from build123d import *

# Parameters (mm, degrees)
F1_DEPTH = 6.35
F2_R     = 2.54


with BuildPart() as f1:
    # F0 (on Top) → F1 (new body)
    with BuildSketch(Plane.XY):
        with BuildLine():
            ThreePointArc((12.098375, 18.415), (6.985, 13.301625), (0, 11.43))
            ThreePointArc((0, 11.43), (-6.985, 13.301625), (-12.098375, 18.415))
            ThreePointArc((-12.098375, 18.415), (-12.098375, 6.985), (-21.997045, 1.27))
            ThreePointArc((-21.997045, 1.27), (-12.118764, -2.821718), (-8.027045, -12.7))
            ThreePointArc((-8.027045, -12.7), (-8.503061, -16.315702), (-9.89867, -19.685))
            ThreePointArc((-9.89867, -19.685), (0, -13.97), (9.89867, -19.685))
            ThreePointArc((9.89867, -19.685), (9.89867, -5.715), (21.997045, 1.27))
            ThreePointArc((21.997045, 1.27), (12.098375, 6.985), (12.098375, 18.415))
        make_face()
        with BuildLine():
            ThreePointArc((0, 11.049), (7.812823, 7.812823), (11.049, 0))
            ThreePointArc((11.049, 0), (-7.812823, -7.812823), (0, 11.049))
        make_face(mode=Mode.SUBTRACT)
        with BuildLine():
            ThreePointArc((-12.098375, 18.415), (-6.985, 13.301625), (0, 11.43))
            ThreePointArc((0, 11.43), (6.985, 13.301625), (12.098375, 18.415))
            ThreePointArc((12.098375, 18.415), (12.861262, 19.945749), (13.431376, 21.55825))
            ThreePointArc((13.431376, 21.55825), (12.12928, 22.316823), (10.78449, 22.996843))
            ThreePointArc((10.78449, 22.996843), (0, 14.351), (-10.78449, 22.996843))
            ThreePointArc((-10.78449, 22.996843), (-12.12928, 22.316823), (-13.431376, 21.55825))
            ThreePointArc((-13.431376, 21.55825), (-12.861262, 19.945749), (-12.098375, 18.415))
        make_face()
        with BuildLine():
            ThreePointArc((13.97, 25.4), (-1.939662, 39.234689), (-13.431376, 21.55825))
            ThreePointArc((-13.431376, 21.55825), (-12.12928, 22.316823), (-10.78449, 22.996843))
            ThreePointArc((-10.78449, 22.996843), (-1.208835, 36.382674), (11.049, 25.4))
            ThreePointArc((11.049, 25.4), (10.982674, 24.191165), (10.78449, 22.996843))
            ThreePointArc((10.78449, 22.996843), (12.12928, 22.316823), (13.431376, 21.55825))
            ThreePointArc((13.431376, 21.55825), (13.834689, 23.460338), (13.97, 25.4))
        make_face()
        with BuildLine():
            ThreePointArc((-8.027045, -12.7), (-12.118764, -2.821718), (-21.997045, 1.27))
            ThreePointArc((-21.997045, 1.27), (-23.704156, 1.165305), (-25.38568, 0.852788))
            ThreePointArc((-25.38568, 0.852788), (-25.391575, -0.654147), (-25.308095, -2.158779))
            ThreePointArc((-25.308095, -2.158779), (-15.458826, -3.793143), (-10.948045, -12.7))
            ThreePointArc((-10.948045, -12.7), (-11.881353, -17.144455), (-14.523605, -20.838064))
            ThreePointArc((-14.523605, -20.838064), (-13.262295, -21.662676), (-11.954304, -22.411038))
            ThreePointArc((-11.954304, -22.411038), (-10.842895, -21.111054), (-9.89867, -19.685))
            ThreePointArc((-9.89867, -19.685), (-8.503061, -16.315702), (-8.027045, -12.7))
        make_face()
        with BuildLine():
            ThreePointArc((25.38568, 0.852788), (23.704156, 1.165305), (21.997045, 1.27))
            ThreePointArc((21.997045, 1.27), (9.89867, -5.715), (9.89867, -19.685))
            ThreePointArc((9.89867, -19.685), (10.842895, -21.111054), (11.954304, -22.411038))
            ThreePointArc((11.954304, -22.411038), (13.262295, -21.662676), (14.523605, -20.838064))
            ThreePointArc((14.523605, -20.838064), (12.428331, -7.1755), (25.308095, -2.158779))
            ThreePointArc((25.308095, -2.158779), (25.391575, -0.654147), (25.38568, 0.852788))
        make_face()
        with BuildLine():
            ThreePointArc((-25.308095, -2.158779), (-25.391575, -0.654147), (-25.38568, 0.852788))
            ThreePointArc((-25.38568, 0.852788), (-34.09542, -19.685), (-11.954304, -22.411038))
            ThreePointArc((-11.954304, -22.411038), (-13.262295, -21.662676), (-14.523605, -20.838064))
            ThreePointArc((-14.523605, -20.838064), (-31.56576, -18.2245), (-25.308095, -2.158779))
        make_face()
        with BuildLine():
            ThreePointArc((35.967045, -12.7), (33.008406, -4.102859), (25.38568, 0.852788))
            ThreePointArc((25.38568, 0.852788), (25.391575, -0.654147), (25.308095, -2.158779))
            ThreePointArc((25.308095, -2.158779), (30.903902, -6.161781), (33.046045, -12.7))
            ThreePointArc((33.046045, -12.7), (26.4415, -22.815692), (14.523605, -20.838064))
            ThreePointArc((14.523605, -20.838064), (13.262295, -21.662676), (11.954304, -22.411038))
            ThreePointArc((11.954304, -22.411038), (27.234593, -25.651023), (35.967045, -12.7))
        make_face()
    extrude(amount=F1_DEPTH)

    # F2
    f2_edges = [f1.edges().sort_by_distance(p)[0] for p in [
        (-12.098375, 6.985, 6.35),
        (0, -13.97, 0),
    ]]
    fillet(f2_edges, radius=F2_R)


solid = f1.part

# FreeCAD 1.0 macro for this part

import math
import FreeCAD as App
import Part
import Sketcher
from FreeCAD import Vector
Q = App.Units.Quantity


def edges_at(feature, points):
    """Names of the edges that pass closest to the given points."""
    edges = feature.Shape.Edges
    near = lambda p: min(range(len(edges)), key=lambda i: edges[i].distToShape(Part.Vertex(*p))[0])
    return sorted({f"Edge{near(p) + 1}" for p in points})

doc = App.newDocument("Part")
body = doc.addObject("PartDesign::Body", "Body")

sketch1 = body.newObject("Sketcher::SketchObject", "Sketch")
sketch1.AttachmentSupport = (doc.getObject("XY_Plane"), [""])
sketch1.MapMode = "FlatFace"
sketch1.addGeometry(Part.ArcOfCircle(Part.Circle(Vector(21.997045, 12.7, 0), Vector(0, 0, 1), 11.43), math.radians(150), math.radians(269.999998)), False)
sketch1.addGeometry(Part.ArcOfCircle(Part.Circle(Vector(0.000047, 25.39998, 0), Vector(0, 0, 1), 13.969949), math.radians(-30.000026), math.radians(-15.961989)), False)
sketch1.addGeometry(Part.ArcOfCircle(Part.Circle(Vector(0.000023, 25.399996, 0), Vector(0, 0, 1), 13.969977), math.radians(-15.962025), math.radians(0.000015)), False)
sketch1.addGeometry(Part.ArcOfCircle(Part.Circle(Vector(0, 25.4, 0), Vector(0, 0, 1), 13.97), math.radians(-0.000001), math.radians(195.962015)), False)
sketch1.addGeometry(Part.ArcOfCircle(Part.Circle(Vector(-0.000047, 25.39998, 0), Vector(0, 0, 1), 13.969949), math.radians(-164.038011), math.radians(-149.999974)), False)
sketch1.addGeometry(Part.ArcOfCircle(Part.Circle(Vector(-21.997045, 12.7, 0), Vector(0, 0, 1), 11.43), math.radians(-89.999998), math.radians(30)), False)
sketch1.addGeometry(Part.ArcOfCircle(Part.Circle(Vector(-21.99705, -12.699972, 0), Vector(0, 0, 1), 13.969972), math.radians(89.99998), math.radians(104.037994)), False)
sketch1.addGeometry(Part.ArcOfCircle(Part.Circle(Vector(-21.997045, -12.7, 0), Vector(0, 0, 1), 13.97), math.radians(104.037987), math.radians(315.962013)), False)
sketch1.addGeometry(Part.ArcOfCircle(Part.Circle(Vector(-21.997093, -12.699964, 0), Vector(0, 0, 1), 13.97006), math.radians(-44.037955), math.radians(-30.000028)), False)
sketch1.addGeometry(Part.ArcOfCircle(Part.Circle(Vector(0, -25.399999, 0), Vector(0, 0, 1), 11.429999), math.radians(29.999998), math.radians(150.000002)), False)
sketch1.addGeometry(Part.ArcOfCircle(Part.Circle(Vector(21.997093, -12.699964, 0), Vector(0, 0, 1), 13.97006), math.radians(-149.999972), math.radians(-135.962045)), False)
sketch1.addGeometry(Part.ArcOfCircle(Part.Circle(Vector(21.997045, -12.7, 0), Vector(0, 0, 1), 13.97), math.radians(-135.962014), math.radians(0.000001)), False)
sketch1.addGeometry(Part.ArcOfCircle(Part.Circle(Vector(21.997045, -12.7, 0), Vector(0, 0, 1), 13.97), math.radians(-0.000001), math.radians(75.962013)), False)
sketch1.addGeometry(Part.ArcOfCircle(Part.Circle(Vector(21.99705, -12.699972, 0), Vector(0, 0, 1), 13.969972), math.radians(75.962006), math.radians(90.00002)), False)
sketch1.addGeometry(Part.ArcOfCircle(Part.Circle(Vector(21.997045, -12.7, 0), Vector(0, 0, 1), 11.049), math.radians(72.562238), math.radians(227.437763)), False)
sketch1.addGeometry(Part.ArcOfCircle(Part.Circle(Vector(21.997048, -12.699999, 0), Vector(0, 0, 1), 11.048997), math.radians(-0.000008), math.radians(72.562247)), False)
sketch1.addGeometry(Part.ArcOfCircle(Part.Circle(Vector(21.997045, -12.700001, 0), Vector(0, 0, 1), 11.049), math.radians(-132.562239), math.radians(0.000003)), False)
sketch1.addGeometry(Part.ArcOfCircle(Part.Circle(Vector(-21.997044, -12.699999, 0), Vector(0, 0, 1), 11.048999), math.radians(-0.000005), math.radians(107.43777)), False)
sketch1.addGeometry(Part.ArcOfCircle(Part.Circle(Vector(-21.99704, -12.700001, 0), Vector(0, 0, 1), 11.048995), math.radians(-47.437777), math.radians(0.000007)), False)
sketch1.addGeometry(Part.ArcOfCircle(Part.Circle(Vector(-21.997046, -12.7, 0), Vector(0, 0, 1), 11.049), math.radians(107.437761), math.radians(312.562238)), False)
sketch1.addGeometry(Part.ArcOfCircle(Part.Circle(Vector(0, 25.399999, 0), Vector(0, 0, 1), 11.048999), math.radians(-167.437767), math.radians(-12.562233)), False)
sketch1.addGeometry(Part.ArcOfCircle(Part.Circle(Vector(0, 25.400001, 0), Vector(0, 0, 1), 11.049), math.radians(-0.000003), math.radians(192.562239)), False)
sketch1.addGeometry(Part.ArcOfCircle(Part.Circle(Vector(0.000118, 25.39999, 0), Vector(0, 0, 1), 11.048882), math.radians(-12.562317), math.radians(0.000053)), False)
sketch1.addGeometry(Part.ArcOfCircle(Part.Circle(Vector(0, 0, 0), Vector(0, 0, 1), 11.049), math.radians(89.999999), math.radians(360.000001)), False)
sketch1.addGeometry(Part.ArcOfCircle(Part.Circle(Vector(0.000001, 0.000001, 0), Vector(0, 0, 1), 11.048999), math.radians(-0.000003), math.radians(90.000003)), False)
sketch1.addConstraint(Sketcher.Constraint("Coincident", 0, 1, 1, 1))
sketch1.addConstraint(Sketcher.Constraint("Coincident", 1, 2, 2, 1))
sketch1.addConstraint(Sketcher.Constraint("Coincident", 2, 2, 3, 1))
sketch1.addConstraint(Sketcher.Constraint("Coincident", 3, 2, 4, 1))
sketch1.addConstraint(Sketcher.Constraint("Coincident", 4, 2, 5, 2))
sketch1.addConstraint(Sketcher.Constraint("Coincident", 5, 1, 6, 1))
sketch1.addConstraint(Sketcher.Constraint("Coincident", 6, 2, 7, 1))
sketch1.addConstraint(Sketcher.Constraint("Coincident", 7, 2, 8, 1))
sketch1.addConstraint(Sketcher.Constraint("Coincident", 8, 2, 9, 2))
sketch1.addConstraint(Sketcher.Constraint("Coincident", 9, 1, 10, 1))
sketch1.addConstraint(Sketcher.Constraint("Coincident", 10, 2, 11, 1))
sketch1.addConstraint(Sketcher.Constraint("Coincident", 11, 2, 12, 1))
sketch1.addConstraint(Sketcher.Constraint("Coincident", 12, 2, 13, 1))
sketch1.addConstraint(Sketcher.Constraint("Coincident", 13, 2, 0, 2))
sketch1.addConstraint(Sketcher.Constraint("Coincident", 14, 1, 15, 2))
sketch1.addConstraint(Sketcher.Constraint("Coincident", 15, 1, 16, 2))
sketch1.addConstraint(Sketcher.Constraint("Coincident", 16, 1, 14, 2))
sketch1.addConstraint(Sketcher.Constraint("Coincident", 17, 1, 18, 2))
sketch1.addConstraint(Sketcher.Constraint("Coincident", 18, 1, 19, 2))
sketch1.addConstraint(Sketcher.Constraint("Coincident", 19, 1, 17, 2))
sketch1.addConstraint(Sketcher.Constraint("Coincident", 20, 1, 21, 2))
sketch1.addConstraint(Sketcher.Constraint("Coincident", 21, 1, 22, 2))
sketch1.addConstraint(Sketcher.Constraint("Coincident", 22, 1, 20, 2))
sketch1.addConstraint(Sketcher.Constraint("Coincident", 23, 1, 24, 2))
sketch1.addConstraint(Sketcher.Constraint("Coincident", 24, 1, 23, 2))
sketch1.addConstraint(Sketcher.Constraint("Coincident", 23, 3, -1, 1))
sketch1.addConstraint(Sketcher.Constraint("Coincident", 12, 3, 11, 3))
sketch1.addConstraint(Sketcher.Constraint("Coincident", 14, 3, 11, 3))
sketch1.addConstraint(Sketcher.Constraint("Coincident", 15, 3, 11, 3))
sketch1.addConstraint(Sketcher.Constraint("Coincident", 17, 3, 7, 3))
sketch1.addConstraint(Sketcher.Constraint("Coincident", 18, 3, 7, 3))
sketch1.addConstraint(Sketcher.Constraint("Coincident", 20, 3, 3, 3))
sketch1.addConstraint(Sketcher.Constraint("Coincident", 21, 3, 3, 3))
sketch1.addConstraint(Sketcher.Constraint("PointOnObject", 3, 3, -2))
sketch1.addConstraint(Sketcher.Constraint("PointOnObject", 9, 3, -2))
sketch1.addConstraint(Sketcher.Constraint("PointOnObject", 23, 1, -2))
sketch1.addConstraint(Sketcher.Constraint("PointOnObject", 24, 1, -1))
sketch1.addConstraint(Sketcher.Constraint("Radius", 0, Q("0.45 in")))
sketch1.addConstraint(Sketcher.Constraint("Radius", 3, Q("0.55 in")))
sketch1.addConstraint(Sketcher.Constraint("Radius", 5, Q("0.45 in")))
sketch1.addConstraint(Sketcher.Constraint("Radius", 7, Q("0.55 in")))
sketch1.addConstraint(Sketcher.Constraint("Radius", 9, Q("0.45 in")))
sketch1.addConstraint(Sketcher.Constraint("Radius", 11, Q("0.55 in")))
sketch1.addConstraint(Sketcher.Constraint("DistanceY", -1, 1, 2, 3, Q("0.9999999 in")))
sketch1.addConstraint(Sketcher.Constraint("DistanceY", -1, 1, 3, 3, Q("1 in")))
sketch1.addConstraint(Sketcher.Constraint("DistanceY", 9, 3, -1, 1, Q("1 in")))
sketch1.addConstraint(Sketcher.Constraint("DistanceY", -1, 1, 2, 2, Q("1 in")))
sketch1.addConstraint(Sketcher.Constraint("DistanceY", -1, 1, 21, 1, Q("1 in")))
sketch1.addConstraint(Sketcher.Constraint("Radius", 14, Q("0.435 in")))
sketch1.addConstraint(Sketcher.Constraint("Radius", 16, Q("0.435 in")))
sketch1.addConstraint(Sketcher.Constraint("Radius", 17, Q("0.435 in")))
sketch1.addConstraint(Sketcher.Constraint("Radius", 19, Q("0.435 in")))
sketch1.addConstraint(Sketcher.Constraint("Radius", 20, Q("0.435 in")))
sketch1.addConstraint(Sketcher.Constraint("Radius", 23, Q("0.435 in")))
sketch1.addConstraint(Sketcher.Constraint("Radius", 24, Q("0.435 in")))
sketch1.addConstraint(Sketcher.Constraint("DistanceY", 7, 3, 5, 3, Q("1 in")))
sketch1.addConstraint(Sketcher.Constraint("DistanceY", 11, 3, 0, 3, Q("1 in")))
sketch1.addConstraint(Sketcher.Constraint("DistanceY", -1, 1, 0, 3, Q("0.5 in")))
sketch1.addConstraint(Sketcher.Constraint("DistanceY", -1, 1, 5, 3, Q("0.5 in")))
sketch1.addConstraint(Sketcher.Constraint("DistanceY", 11, 2, -1, 1, Q("0.5 in")))
sketch1.addConstraint(Sketcher.Constraint("DistanceY", 15, 1, -1, 1, Q("0.5 in")))
sketch1.addConstraint(Sketcher.Constraint("DistanceY", 17, 1, -1, 1, Q("0.5 in")))
sketch1.addConstraint(Sketcher.Constraint("DistanceX", 13, 3, 11, 2, Q("0.5499998 in")))
sketch1.addConstraint(Sketcher.Constraint("DistanceY", 23, 1, 0, 1, Q("0.29 in")))
sketch1.addConstraint(Sketcher.Constraint("DistanceY", 23, 1, 4, 2, Q("0.29 in")))
sketch1.addConstraint(Sketcher.Constraint("DistanceY", 8, 2, -1, 1, Q("0.775 in")))
sketch1.addConstraint(Sketcher.Constraint("DistanceY", 9, 1, -1, 1, Q("0.775 in")))
sketch1.addConstraint(Sketcher.Constraint("Radius", 1, 13.969949))
sketch1.addConstraint(Sketcher.Constraint("Radius", 4, 13.969949))
sketch1.addConstraint(Sketcher.Constraint("Radius", 8, 13.97006))
sketch1.addConstraint(Sketcher.Constraint("Radius", 10, 13.97006))
sketch1.addConstraint(Sketcher.Constraint("Radius", 2, 13.969977))
sketch1.addConstraint(Sketcher.Constraint("Radius", 6, 13.969972))
sketch1.addConstraint(Sketcher.Constraint("Radius", 22, 11.048882))
sketch1.addConstraint(Sketcher.Constraint("DistanceX", 1, 3, 0, 3, 21.996998))
sketch1.addConstraint(Sketcher.Constraint("DistanceX", 5, 3, 4, 3, 21.996998))
sketch1.addConstraint(Sketcher.Constraint("DistanceX", 0, 1, 1, 2, 1.333001))
sketch1.addConstraint(Sketcher.Constraint("DistanceX", 3, 2, 4, 2, 1.333001))
sketch1.addConstraint(Sketcher.Constraint("DistanceX", 10, 3, 14, 1, 3.311002))
sketch1.addConstraint(Sketcher.Constraint("DistanceX", 10, 2, 16, 1, 2.569301))
sketch1.addConstraint(Sketcher.Constraint("DistanceX", 18, 1, 7, 2, 2.569301))
sketch1.addConstraint(Sketcher.Constraint("DistanceX", 19, 1, 8, 3, 3.311002))
sketch1.addConstraint(Sketcher.Constraint("DistanceX", 6, 3, -1, 1, 21.99705))
sketch1.addConstraint(Sketcher.Constraint("DistanceX", -1, 1, 13, 3, 21.99705))
sketch1.addConstraint(Sketcher.Constraint("DistanceX", 6, 2, -1, 1, 25.38568))
sketch1.addConstraint(Sketcher.Constraint("DistanceY", 7, 2, -1, 1, 22.411038))
sketch1.addConstraint(Sketcher.Constraint("DistanceX", -1, 1, 12, 2, 25.38568))
sketch1.addConstraint(Sketcher.Constraint("DistanceX", 20, 1, -1, 1, 10.78449))
sketch1.addConstraint(Sketcher.Constraint("DistanceX", -1, 1, 22, 1, 10.78449))
sketch1.addConstraint(Sketcher.Constraint("DistanceY", 9, 3, 10, 2, 2.988961))
sketch1.addConstraint(Sketcher.Constraint("DistanceX", 13, 2, 14, 1, 3.31105))
sketch1.addConstraint(Sketcher.Constraint("DistanceX", 19, 1, 5, 1, 3.31105))
pad1 = body.newObject("PartDesign::Pad", "Pad")
pad1.Profile = sketch1
pad1.Length = Q("0.25 in")
doc.recompute()

fillet = body.newObject("PartDesign::Fillet", "Fillet")
fillet.Base = (pad1, edges_at(pad1, [(-12.098, 6.985, 6.35), (0, -13.97, 0)]))
fillet.Radius = Q("0.1 in")

doc.recompute()
